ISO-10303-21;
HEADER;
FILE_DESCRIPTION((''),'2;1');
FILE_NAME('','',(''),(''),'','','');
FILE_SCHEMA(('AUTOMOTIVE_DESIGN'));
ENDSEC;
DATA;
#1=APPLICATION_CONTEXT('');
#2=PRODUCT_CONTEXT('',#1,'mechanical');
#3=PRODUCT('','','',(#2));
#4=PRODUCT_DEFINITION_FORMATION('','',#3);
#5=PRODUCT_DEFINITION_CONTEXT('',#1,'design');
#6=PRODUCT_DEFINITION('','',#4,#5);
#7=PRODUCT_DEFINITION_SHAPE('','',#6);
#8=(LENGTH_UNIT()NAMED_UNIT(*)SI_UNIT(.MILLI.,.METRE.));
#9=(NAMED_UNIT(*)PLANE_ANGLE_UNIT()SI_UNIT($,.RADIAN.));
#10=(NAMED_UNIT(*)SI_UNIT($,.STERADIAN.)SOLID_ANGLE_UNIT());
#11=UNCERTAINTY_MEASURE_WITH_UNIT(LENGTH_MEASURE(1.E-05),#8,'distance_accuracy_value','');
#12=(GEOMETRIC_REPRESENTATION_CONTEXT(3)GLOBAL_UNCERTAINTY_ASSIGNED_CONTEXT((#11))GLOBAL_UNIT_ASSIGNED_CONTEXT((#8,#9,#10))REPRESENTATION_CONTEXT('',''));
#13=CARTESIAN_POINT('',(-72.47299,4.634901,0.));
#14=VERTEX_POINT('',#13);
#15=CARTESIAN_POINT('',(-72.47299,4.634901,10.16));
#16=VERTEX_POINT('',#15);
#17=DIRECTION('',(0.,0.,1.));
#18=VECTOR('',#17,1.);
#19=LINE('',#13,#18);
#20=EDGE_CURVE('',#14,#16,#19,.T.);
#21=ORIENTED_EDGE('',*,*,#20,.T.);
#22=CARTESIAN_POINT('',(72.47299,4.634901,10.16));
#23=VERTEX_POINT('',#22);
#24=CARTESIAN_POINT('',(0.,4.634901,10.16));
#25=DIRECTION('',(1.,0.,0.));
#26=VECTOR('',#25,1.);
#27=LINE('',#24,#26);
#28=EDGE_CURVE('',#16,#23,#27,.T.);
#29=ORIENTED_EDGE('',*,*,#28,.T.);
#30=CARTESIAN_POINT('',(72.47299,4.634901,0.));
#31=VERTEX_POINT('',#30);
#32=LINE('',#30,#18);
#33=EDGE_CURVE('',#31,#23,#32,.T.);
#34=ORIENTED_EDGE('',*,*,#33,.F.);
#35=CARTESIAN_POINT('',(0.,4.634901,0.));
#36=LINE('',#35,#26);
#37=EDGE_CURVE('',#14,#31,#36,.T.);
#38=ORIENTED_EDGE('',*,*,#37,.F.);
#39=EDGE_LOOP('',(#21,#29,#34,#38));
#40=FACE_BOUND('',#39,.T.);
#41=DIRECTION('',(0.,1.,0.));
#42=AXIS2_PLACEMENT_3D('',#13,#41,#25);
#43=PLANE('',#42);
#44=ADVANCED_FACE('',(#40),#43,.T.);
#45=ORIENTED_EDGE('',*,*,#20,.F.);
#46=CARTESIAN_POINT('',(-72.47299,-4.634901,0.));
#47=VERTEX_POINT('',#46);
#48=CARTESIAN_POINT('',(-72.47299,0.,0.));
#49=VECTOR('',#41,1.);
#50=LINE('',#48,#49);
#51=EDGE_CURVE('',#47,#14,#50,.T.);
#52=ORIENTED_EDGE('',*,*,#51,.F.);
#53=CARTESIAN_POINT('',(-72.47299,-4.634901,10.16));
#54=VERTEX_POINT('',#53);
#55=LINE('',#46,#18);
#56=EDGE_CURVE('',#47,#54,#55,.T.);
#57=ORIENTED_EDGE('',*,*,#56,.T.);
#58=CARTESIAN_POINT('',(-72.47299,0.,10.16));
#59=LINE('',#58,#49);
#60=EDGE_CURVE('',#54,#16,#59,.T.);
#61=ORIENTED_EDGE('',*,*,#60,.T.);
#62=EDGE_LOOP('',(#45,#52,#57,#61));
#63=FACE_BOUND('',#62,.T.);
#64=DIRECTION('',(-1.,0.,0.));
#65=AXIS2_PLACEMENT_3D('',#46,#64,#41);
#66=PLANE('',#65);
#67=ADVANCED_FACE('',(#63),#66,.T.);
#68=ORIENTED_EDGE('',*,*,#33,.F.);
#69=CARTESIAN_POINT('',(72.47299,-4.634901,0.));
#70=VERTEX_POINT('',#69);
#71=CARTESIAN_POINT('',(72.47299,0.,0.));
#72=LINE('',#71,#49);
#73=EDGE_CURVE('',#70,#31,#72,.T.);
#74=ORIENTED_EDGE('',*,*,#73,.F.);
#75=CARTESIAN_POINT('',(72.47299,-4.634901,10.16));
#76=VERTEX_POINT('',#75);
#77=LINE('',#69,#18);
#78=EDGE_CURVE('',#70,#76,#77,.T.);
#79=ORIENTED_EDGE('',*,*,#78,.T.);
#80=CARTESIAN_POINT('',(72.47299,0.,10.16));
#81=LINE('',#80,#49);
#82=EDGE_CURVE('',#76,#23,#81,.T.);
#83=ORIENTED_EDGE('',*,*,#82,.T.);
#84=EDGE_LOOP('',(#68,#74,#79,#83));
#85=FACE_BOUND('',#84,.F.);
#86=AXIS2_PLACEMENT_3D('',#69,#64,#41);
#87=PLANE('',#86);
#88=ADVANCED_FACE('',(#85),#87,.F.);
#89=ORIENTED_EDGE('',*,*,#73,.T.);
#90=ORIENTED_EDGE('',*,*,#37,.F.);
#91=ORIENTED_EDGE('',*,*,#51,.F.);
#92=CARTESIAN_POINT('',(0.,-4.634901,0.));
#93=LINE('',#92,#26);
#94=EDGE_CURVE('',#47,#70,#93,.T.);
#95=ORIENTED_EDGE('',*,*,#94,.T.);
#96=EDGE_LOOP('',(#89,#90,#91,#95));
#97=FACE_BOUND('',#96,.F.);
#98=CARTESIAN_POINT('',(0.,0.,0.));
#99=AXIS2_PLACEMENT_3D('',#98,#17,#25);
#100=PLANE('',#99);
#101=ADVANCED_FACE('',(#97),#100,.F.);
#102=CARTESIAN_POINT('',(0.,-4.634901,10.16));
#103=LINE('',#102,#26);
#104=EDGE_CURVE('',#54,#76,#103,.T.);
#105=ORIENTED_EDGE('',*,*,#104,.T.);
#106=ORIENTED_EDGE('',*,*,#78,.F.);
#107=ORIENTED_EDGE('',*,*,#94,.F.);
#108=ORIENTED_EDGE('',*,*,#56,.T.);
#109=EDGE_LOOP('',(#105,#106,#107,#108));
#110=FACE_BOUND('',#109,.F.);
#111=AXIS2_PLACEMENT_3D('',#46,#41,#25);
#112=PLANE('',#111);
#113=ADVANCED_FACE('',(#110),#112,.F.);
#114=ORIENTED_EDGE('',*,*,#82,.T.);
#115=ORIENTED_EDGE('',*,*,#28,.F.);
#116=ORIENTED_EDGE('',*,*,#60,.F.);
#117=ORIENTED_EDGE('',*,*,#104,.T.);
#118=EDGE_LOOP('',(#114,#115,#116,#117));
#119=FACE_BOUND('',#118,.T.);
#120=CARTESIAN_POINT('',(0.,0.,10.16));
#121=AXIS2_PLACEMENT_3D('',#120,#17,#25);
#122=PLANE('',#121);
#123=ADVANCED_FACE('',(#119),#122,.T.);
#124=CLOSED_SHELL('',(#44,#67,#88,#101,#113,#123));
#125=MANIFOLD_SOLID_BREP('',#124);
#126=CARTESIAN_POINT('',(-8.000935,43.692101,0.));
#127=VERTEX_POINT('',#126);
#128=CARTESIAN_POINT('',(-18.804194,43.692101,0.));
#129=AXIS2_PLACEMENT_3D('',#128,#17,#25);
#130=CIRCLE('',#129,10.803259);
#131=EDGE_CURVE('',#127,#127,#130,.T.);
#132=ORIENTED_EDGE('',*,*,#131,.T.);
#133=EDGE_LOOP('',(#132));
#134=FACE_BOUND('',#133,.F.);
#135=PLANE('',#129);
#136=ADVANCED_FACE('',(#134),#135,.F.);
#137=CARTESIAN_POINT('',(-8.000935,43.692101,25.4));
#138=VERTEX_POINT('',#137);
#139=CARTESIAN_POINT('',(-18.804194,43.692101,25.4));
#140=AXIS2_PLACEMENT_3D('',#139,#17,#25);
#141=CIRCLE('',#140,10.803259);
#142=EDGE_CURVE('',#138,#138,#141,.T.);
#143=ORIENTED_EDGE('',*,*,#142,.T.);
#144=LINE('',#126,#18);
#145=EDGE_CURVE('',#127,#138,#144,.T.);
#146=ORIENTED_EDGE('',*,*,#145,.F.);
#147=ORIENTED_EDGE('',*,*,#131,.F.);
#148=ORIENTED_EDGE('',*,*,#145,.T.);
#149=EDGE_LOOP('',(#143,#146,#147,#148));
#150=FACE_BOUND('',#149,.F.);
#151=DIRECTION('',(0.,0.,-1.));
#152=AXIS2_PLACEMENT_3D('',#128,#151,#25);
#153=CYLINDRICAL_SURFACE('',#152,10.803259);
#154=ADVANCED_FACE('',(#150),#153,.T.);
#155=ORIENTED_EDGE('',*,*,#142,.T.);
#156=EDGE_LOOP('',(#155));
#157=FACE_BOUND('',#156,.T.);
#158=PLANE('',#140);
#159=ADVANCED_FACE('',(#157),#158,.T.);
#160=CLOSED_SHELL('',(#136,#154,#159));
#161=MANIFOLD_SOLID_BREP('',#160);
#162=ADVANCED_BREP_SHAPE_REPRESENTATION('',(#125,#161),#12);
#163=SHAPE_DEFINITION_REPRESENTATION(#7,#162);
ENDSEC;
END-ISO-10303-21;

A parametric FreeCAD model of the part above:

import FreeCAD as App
import Part
import Sketcher

V = App.Vector
Q = App.Units.Quantity


def add_polygon(sketch, points):
    """Adds a closed chain of lines whose ends are joined by coincident constraints."""
    first, n = sketch.GeometryCount, len(points)
    for a, b in zip(points, points[1:] + points[:1]):
        sketch.addGeometry(Part.LineSegment(App.Vector(*a, 0), App.Vector(*b, 0)), False)
    for i in range(n):
        sketch.addConstraint(Sketcher.Constraint("Coincident", first + i, 2, first + (i + 1) % n, 1))

doc = App.newDocument("Part")
body = doc.addObject("PartDesign::Body", "Body")

sketch1 = body.newObject("Sketcher::SketchObject", "Sketch")
sketch1.AttachmentSupport = (doc.getObject("XY_Plane"), [""])
sketch1.MapMode = "FlatFace"
add_polygon(sketch1, [(-72, 5), (-72, -5), (72, -5), (72, 5)])
sketch1.addConstraint([
    Sketcher.Constraint("Vertical", 0),
    Sketcher.Constraint("Horizontal", 1),
    Sketcher.Constraint("Vertical", 2),
    Sketcher.Constraint("Horizontal", 3),
    Sketcher.Constraint("Symmetric", 0, 2, 2, 2, -1, 1),
    Sketcher.Constraint("DistanceX", 1, 1, 1, 2, 144.94598),
    Sketcher.Constraint("DistanceY", 0, 2, -1, 1, 4.634901),
])
pad1 = body.newObject("PartDesign::Pad", "Pad")
pad1.Profile = sketch1
pad1.Length = Q("0.4 in")
body2 = doc.addObject("PartDesign::Body", "Body001")

sketch2 = body2.newObject("Sketcher::SketchObject", "Sketch001")
sketch2.AttachmentSupport = (doc.getObject("XY_Plane001"), [""])
sketch2.MapMode = "FlatFace"
sketch2.addGeometry(Part.Circle(V(-19, 44, 0), V(0, 0, 1), 11), False)
sketch2.addConstraint([
    Sketcher.Constraint("Diameter", 0, 21.606518),
    Sketcher.Constraint("DistanceY", -1, 1, 0, 3, 43.692101),
    Sketcher.Constraint("DistanceX", 0, 3, -1, 1, 18.804194),
])
pad2 = body2.newObject("PartDesign::Pad", "Pad001")
pad2.Profile = sketch2
pad2.Length = Q("1 in")

doc.recompute()
